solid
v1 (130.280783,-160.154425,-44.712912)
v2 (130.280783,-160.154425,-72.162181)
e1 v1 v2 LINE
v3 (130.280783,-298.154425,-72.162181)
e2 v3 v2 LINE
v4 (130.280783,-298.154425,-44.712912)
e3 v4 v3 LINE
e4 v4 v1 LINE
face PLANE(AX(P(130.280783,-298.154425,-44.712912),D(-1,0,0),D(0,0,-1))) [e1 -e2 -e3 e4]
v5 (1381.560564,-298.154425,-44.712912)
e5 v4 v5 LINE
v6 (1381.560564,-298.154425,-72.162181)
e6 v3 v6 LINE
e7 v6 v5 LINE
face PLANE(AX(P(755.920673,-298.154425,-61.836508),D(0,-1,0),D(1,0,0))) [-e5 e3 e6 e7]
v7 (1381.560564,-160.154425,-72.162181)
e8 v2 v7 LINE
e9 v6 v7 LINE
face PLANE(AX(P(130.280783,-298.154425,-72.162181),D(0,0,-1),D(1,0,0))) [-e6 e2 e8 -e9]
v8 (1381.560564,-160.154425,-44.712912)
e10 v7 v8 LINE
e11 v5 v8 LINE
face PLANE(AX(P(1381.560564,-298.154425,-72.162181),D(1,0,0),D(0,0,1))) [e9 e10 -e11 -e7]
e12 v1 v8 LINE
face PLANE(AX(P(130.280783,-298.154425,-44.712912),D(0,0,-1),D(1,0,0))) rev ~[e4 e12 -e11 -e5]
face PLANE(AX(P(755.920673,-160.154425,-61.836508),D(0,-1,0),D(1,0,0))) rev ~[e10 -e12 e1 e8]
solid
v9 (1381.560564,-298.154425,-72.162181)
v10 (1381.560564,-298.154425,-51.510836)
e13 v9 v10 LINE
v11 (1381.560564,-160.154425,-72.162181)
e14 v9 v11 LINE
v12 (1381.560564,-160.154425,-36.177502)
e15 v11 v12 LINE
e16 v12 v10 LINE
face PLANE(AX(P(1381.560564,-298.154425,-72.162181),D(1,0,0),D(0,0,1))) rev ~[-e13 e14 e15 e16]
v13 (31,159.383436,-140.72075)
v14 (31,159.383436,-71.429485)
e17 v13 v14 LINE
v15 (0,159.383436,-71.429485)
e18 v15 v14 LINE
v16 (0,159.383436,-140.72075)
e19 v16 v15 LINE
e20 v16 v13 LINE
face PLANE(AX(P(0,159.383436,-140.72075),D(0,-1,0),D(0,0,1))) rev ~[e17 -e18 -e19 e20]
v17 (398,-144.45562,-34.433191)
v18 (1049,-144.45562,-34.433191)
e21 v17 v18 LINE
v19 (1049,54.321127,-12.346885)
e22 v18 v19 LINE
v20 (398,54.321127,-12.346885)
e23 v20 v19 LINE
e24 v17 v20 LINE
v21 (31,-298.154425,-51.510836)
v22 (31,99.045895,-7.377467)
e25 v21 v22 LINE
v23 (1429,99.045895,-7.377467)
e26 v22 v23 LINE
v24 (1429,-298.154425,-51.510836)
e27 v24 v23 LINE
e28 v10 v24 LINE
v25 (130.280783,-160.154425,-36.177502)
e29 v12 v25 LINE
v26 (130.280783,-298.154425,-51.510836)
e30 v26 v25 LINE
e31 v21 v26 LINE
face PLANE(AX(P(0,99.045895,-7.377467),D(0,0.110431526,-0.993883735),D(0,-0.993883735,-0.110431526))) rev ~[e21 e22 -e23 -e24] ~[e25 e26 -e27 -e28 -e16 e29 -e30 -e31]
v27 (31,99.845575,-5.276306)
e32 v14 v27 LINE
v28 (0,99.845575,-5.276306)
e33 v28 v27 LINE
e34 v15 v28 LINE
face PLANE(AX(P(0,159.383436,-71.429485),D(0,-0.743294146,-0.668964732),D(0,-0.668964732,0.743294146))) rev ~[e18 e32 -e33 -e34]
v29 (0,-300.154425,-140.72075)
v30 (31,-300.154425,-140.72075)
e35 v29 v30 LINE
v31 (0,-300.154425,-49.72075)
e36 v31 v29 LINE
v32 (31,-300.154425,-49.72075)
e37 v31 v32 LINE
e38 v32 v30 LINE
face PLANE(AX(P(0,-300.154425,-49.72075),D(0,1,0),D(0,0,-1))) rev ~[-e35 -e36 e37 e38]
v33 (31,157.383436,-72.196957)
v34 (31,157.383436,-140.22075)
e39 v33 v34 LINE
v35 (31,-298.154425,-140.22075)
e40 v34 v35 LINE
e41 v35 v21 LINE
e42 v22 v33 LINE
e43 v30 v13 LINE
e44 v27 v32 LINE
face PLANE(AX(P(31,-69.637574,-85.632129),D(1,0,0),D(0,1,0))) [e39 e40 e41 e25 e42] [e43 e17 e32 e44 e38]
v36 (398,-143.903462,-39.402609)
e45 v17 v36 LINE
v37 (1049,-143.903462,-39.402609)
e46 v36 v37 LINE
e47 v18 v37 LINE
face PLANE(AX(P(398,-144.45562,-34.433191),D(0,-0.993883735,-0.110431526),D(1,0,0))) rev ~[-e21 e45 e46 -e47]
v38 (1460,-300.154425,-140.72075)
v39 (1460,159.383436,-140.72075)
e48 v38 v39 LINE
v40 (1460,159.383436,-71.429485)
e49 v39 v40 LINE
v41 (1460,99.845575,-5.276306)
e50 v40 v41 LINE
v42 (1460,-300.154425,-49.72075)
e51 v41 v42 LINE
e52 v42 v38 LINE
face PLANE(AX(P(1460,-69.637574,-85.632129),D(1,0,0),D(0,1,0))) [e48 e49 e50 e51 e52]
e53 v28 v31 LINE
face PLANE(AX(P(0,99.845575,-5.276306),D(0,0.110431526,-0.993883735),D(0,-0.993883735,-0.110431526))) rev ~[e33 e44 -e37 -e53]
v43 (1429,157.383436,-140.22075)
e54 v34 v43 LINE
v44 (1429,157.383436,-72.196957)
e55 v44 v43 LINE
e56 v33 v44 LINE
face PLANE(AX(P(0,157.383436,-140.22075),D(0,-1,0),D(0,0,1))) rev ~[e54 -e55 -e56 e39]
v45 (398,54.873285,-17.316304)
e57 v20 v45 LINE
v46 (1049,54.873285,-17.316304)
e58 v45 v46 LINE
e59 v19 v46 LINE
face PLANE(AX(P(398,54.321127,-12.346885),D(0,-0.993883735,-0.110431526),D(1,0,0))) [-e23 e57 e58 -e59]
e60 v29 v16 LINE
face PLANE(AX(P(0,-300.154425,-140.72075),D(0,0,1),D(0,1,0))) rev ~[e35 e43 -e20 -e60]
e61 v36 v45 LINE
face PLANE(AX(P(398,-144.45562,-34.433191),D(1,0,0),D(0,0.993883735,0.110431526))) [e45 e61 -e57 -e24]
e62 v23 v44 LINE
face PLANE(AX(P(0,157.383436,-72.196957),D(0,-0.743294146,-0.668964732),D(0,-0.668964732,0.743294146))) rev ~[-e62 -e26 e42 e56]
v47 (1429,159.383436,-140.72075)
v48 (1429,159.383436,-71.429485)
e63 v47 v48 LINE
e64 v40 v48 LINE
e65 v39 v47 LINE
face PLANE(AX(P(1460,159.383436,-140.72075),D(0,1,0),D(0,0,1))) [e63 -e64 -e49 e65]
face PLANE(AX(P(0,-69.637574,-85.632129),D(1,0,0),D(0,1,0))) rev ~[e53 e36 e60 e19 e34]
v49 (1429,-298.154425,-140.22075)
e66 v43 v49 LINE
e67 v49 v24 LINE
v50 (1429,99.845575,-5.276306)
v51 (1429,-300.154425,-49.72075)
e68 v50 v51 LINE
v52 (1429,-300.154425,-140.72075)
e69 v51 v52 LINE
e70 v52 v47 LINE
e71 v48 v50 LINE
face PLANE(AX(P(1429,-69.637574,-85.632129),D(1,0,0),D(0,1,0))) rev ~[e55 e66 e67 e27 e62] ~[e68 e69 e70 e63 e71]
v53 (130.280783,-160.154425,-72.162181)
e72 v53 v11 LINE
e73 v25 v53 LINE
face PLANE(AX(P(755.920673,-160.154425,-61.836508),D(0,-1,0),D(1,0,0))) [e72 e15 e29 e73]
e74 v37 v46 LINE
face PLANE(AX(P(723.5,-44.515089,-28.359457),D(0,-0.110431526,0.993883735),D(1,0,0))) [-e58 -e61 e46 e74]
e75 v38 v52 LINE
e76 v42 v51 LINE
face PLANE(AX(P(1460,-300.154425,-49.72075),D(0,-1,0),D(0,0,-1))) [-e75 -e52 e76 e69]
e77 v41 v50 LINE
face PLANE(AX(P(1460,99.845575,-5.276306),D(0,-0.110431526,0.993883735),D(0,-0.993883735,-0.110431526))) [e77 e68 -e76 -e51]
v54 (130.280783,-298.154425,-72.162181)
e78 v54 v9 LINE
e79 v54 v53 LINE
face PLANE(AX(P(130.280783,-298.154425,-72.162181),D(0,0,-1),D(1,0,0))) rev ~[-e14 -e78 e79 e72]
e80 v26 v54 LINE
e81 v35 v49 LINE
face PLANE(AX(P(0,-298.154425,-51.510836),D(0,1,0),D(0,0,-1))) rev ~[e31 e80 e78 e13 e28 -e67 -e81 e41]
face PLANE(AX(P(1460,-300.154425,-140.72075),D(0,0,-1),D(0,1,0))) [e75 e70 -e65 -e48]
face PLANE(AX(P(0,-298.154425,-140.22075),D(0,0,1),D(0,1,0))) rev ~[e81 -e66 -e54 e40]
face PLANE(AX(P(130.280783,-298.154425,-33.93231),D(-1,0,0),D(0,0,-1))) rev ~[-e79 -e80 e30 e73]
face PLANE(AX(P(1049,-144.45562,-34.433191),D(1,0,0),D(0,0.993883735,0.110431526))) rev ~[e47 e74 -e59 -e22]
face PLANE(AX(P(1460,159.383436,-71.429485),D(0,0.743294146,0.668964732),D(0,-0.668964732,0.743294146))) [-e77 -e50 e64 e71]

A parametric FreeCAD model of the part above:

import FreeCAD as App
import Part
import Sketcher
from FreeCAD import Vector


def add_polygon(sketch, points):
    """Adds a closed chain of lines whose ends are joined by coincident constraints."""
    first, n = sketch.GeometryCount, len(points)
    for a, b in zip(points, points[1:] + points[:1]):
        sketch.addGeometry(Part.LineSegment(App.Vector(*a, 0), App.Vector(*b, 0)), False)
    for i in range(n):
        sketch.addConstraint(Sketcher.Constraint("Coincident", first + i, 2, first + (i + 1) % n, 1))

doc = App.newDocument("Part")
body = doc.addObject("PartDesign::Body", "Body")

sketch1 = doc.addObject("Sketcher::SketchObject", "Sketch")
body.addObject(sketch1)
sketch1.AttachmentSupport = (doc.YZ_Plane, [""])
sketch1.MapMode = "FlatFace"
add_polygon(sketch1, [(99.045895, -7.377467), (-298.154425, -51.510836), (-298.154425, -140.22075), (157.383436, -140.22075), (157.383436, -72.196957)])
sketch1.addConstraint(Sketcher.Constraint("Vertical", 1))
sketch1.addConstraint(Sketcher.Constraint("Horizontal", 2))
sketch1.addConstraint(Sketcher.Constraint("Vertical", 3))
sketch1.addConstraint(Sketcher.Constraint("DistanceX", 2, 1, 2, 2, 455.537861))
sketch1.addConstraint(Sketcher.Constraint("DistanceY", 1, 2, 1, 1, 88.709914))
sketch1.addConstraint(Sketcher.Constraint("DistanceY", 3, 1, 3, 2, 68.023793))
sketch1.addConstraint(Sketcher.Constraint("DistanceY", 1, 2, -1, 1, 140.22075))
sketch1.addConstraint(Sketcher.Constraint("DistanceX", 4, 2, 3, 2, 58.337541))
sketch1.addConstraint(Sketcher.Constraint("DistanceY", 3, 2, 4, 2, 64.81949))
sketch1.addConstraint(Sketcher.Constraint("DistanceX", 0, 2, -1, 1, 298.154425))
pad1 = doc.addObject("PartDesign::Pad", "Pad")
body.addObject(pad1)
pad1.Profile = sketch1
pad1.Length = 1460

sketch2 = doc.addObject("Sketcher::SketchObject", "Sketch001")
body.addObject(sketch2)
sketch2.AttachmentSupport = (doc.YZ_Plane, [""])
sketch2.MapMode = "FlatFace"
add_polygon(sketch2, [(159.383436, -140.72075), (159.383436, -71.429485), (99.845575, -5.276306), (-300.154425, -49.72075), (-300.154425, -140.72075)])
add_polygon(sketch2, [(157.383436, -140.22075), (-298.154425, -140.22075), (-298.154425, -51.510836), (99.045895, -7.377467), (157.383436, -72.196957)])
sketch2.addConstraint(Sketcher.Constraint("Vertical", 0))
sketch2.addConstraint(Sketcher.Constraint("Vertical", 3))
sketch2.addConstraint(Sketcher.Constraint("Horizontal", 4))
sketch2.addConstraint(Sketcher.Constraint("Horizontal", 5))
sketch2.addConstraint(Sketcher.Constraint("Vertical", 6))
sketch2.addConstraint(Sketcher.Constraint("Vertical", 9))
sketch2.addConstraint(Sketcher.Constraint("Parallel", 2, 7))
sketch2.addConstraint(Sketcher.Constraint("Parallel", 1, 8))
sketch2.addConstraint(Sketcher.Constraint("DistanceY", 3, 2, 3, 1, 91.0))
sketch2.addConstraint(Sketcher.Constraint("Distance", 1, 89.0))
sketch2.addConstraint(Sketcher.Constraint("DistanceX", 2, 2, 1, 2, 400.0))
sketch2.addConstraint(Sketcher.Constraint("DistanceX", 3, 2, 5, 2, 2.0))
sketch2.addConstraint(Sketcher.Constraint("DistanceX", 8, 2, 0, 2, 2.0))
sketch2.addConstraint(Sketcher.Constraint("DistanceY", 3, 2, 5, 2, 0.5))
sketch2.addConstraint(Sketcher.Constraint("DistanceX", 4, 1, 4, 2, 459.537861))
sketch2.addConstraint(Sketcher.Constraint("Distance", 2, 402.461562))
sketch2.addConstraint(Sketcher.Constraint("DistanceY", 6, 1, 6, 2, 88.709914))
sketch2.addConstraint(Sketcher.Constraint("DistanceY", 9, 2, 9, 1, 68.023793))
sketch2.addConstraint(Sketcher.Constraint("DistanceY", 2, 2, -1, 1, 49.72075))
sketch2.addConstraint(Sketcher.Constraint("DistanceX", -1, 1, 0, 2, 159.383436))
pad2 = doc.addObject("PartDesign::Pad", "Pad001")
body.addObject(pad2)
pad2.Profile = sketch2
pad2.Length = 31

sketch3 = doc.addObject("Sketcher::SketchObject", "Sketch002")
body.addObject(sketch3)
sketch3.AttachmentSupport = (doc.YZ_Plane, [""])
sketch3.MapMode = "FlatFace"
sketch3.AttachmentOffset = App.Placement(Vector(0, 0, 1460), App.Rotation())
add_polygon(sketch3, [(159.383436, -140.72075), (159.383436, -71.429485), (99.845575, -5.276306), (-300.154425, -49.72075), (-300.154425, -140.72075)])
add_polygon(sketch3, [(157.383436, -140.22075), (-298.154425, -140.22075), (-298.154425, -51.510836), (99.045895, -7.377467), (157.383436, -72.196957)])
sketch3.addConstraint(Sketcher.Constraint("Vertical", 0))
sketch3.addConstraint(Sketcher.Constraint("Vertical", 3))
sketch3.addConstraint(Sketcher.Constraint("Horizontal", 4))
sketch3.addConstraint(Sketcher.Constraint("Horizontal", 5))
sketch3.addConstraint(Sketcher.Constraint("Vertical", 6))
sketch3.addConstraint(Sketcher.Constraint("Vertical", 9))
sketch3.addConstraint(Sketcher.Constraint("Parallel", 2, 7))
sketch3.addConstraint(Sketcher.Constraint("Parallel", 1, 8))
sketch3.addConstraint(Sketcher.Constraint("DistanceY", 3, 2, 3, 1, 91.0))
sketch3.addConstraint(Sketcher.Constraint("Distance", 1, 89.0))
sketch3.addConstraint(Sketcher.Constraint("DistanceX", 2, 2, 1, 2, 400.0))
sketch3.addConstraint(Sketcher.Constraint("DistanceX", 3, 2, 5, 2, 2.0))
sketch3.addConstraint(Sketcher.Constraint("DistanceX", 8, 2, 0, 2, 2.0))
sketch3.addConstraint(Sketcher.Constraint("DistanceY", 3, 2, 5, 2, 0.5))
sketch3.addConstraint(Sketcher.Constraint("DistanceX", 4, 1, 4, 2, 459.537861))
sketch3.addConstraint(Sketcher.Constraint("Distance", 2, 402.461562))
sketch3.addConstraint(Sketcher.Constraint("DistanceY", 6, 1, 6, 2, 88.709914))
sketch3.addConstraint(Sketcher.Constraint("DistanceY", 9, 2, 9, 1, 68.023793))
sketch3.addConstraint(Sketcher.Constraint("DistanceY", 2, 2, -1, 1, 49.72075))
sketch3.addConstraint(Sketcher.Constraint("DistanceX", -1, 1, 0, 2, 159.383436))
pad3 = doc.addObject("PartDesign::Pad", "Pad002")
body.addObject(pad3)
pad3.Profile = sketch3
pad3.Length = 31
pad3.Reversed = True

sketch4 = doc.addObject("Sketcher::SketchObject", "Sketch003")
body.addObject(sketch4)
sketch4.Placement = App.Placement(Vector(0, 2.017599, -18.158389), App.Rotation(Vector(1, 0, 0), Vector(0, 0.993883735, 0.110431526), Vector(0, -0.110431526, 0.993883735), "ZXY"))
add_polygon(sketch4, [(398, 52.625399), (398, -147.374601), (1049, -147.374601), (1049, 52.625399)])
sketch4.addConstraint(Sketcher.Constraint("Vertical", 0))
sketch4.addConstraint(Sketcher.Constraint("Horizontal", 1))
sketch4.addConstraint(Sketcher.Constraint("Vertical", 2))
sketch4.addConstraint(Sketcher.Constraint("Horizontal", 3))
sketch4.addConstraint(Sketcher.Constraint("DistanceX", 1, 1, 1, 2, 651.0))
sketch4.addConstraint(Sketcher.Constraint("DistanceY", 0, 2, 0, 1, 200.0))
sketch4.addConstraint(Sketcher.Constraint("DistanceX", -1, 1, 0, 2, 398.0))
sketch4.addConstraint(Sketcher.Constraint("DistanceY", 0, 2, -1, 1, 147.374601))
pocket1 = doc.addObject("PartDesign::Pocket", "Pocket")
body.addObject(pocket1)
pocket1.Profile = sketch4
pocket1.Length = 5

sketch5 = doc.addObject("Sketcher::SketchObject", "Sketch004")
body.addObject(sketch5)
sketch5.AttachmentSupport = (doc.XZ_Plane, [""])
sketch5.MapMode = "FlatFace"
sketch5.AttachmentOffset = App.Placement(Vector(0, 0, 298.154425), App.Rotation())
add_polygon(sketch5, [(130.280783, -72.162181), (1381.560564, -72.162181), (1381.560564, -33.93231), (130.280783, -33.93231)])
sketch5.addConstraint(Sketcher.Constraint("Horizontal", 0))
sketch5.addConstraint(Sketcher.Constraint("Vertical", 1))
sketch5.addConstraint(Sketcher.Constraint("Horizontal", 2))
sketch5.addConstraint(Sketcher.Constraint("Vertical", 3))
sketch5.addConstraint(Sketcher.Constraint("DistanceX", 0, 1, 0, 2, 1251.279781))
sketch5.addConstraint(Sketcher.Constraint("DistanceY", 1, 1, 1, 2, 38.229872))
sketch5.addConstraint(Sketcher.Constraint("DistanceY", 0, 2, -1, 1, 72.162181))
sketch5.addConstraint(Sketcher.Constraint("DistanceX", -1, 1, 0, 2, 1381.560564))
pocket2 = doc.addObject("PartDesign::Pocket", "Pocket001")
body.addObject(pocket2)
pocket2.Profile = sketch5
pocket2.Length = 138
body2 = doc.addObject("PartDesign::Body", "Body001")

sketch6 = doc.addObject("Sketcher::SketchObject", "Sketch005")
body2.addObject(sketch6)
sketch6.AttachmentSupport = (doc.getObject("XZ_Plane001"), [""])
sketch6.MapMode = "FlatFace"
sketch6.AttachmentOffset = App.Placement(Vector(0, 0, 298.154425), App.Rotation())
add_polygon(sketch6, [(130.280783, -72.162181), (1381.560564, -72.162181), (1381.560564, -44.712912), (130.280783, -44.712912)])
sketch6.addConstraint(Sketcher.Constraint("Horizontal", 0))
sketch6.addConstraint(Sketcher.Constraint("Vertical", 1))
sketch6.addConstraint(Sketcher.Constraint("Horizontal", 2))
sketch6.addConstraint(Sketcher.Constraint("Vertical", 3))
sketch6.addConstraint(Sketcher.Constraint("DistanceX", 0, 1, 0, 2, 1251.279781))
sketch6.addConstraint(Sketcher.Constraint("DistanceY", 1, 1, 1, 2, 27.449269))
sketch6.addConstraint(Sketcher.Constraint("DistanceY", 0, 2, -1, 1, 72.162181))
sketch6.addConstraint(Sketcher.Constraint("DistanceX", -1, 1, 0, 2, 1381.560564))
pad4 = doc.addObject("PartDesign::Pad", "Pad003")
body2.addObject(pad4)
pad4.Profile = sketch6
pad4.Length = 138
pad4.Reversed = True

doc.recompute()
